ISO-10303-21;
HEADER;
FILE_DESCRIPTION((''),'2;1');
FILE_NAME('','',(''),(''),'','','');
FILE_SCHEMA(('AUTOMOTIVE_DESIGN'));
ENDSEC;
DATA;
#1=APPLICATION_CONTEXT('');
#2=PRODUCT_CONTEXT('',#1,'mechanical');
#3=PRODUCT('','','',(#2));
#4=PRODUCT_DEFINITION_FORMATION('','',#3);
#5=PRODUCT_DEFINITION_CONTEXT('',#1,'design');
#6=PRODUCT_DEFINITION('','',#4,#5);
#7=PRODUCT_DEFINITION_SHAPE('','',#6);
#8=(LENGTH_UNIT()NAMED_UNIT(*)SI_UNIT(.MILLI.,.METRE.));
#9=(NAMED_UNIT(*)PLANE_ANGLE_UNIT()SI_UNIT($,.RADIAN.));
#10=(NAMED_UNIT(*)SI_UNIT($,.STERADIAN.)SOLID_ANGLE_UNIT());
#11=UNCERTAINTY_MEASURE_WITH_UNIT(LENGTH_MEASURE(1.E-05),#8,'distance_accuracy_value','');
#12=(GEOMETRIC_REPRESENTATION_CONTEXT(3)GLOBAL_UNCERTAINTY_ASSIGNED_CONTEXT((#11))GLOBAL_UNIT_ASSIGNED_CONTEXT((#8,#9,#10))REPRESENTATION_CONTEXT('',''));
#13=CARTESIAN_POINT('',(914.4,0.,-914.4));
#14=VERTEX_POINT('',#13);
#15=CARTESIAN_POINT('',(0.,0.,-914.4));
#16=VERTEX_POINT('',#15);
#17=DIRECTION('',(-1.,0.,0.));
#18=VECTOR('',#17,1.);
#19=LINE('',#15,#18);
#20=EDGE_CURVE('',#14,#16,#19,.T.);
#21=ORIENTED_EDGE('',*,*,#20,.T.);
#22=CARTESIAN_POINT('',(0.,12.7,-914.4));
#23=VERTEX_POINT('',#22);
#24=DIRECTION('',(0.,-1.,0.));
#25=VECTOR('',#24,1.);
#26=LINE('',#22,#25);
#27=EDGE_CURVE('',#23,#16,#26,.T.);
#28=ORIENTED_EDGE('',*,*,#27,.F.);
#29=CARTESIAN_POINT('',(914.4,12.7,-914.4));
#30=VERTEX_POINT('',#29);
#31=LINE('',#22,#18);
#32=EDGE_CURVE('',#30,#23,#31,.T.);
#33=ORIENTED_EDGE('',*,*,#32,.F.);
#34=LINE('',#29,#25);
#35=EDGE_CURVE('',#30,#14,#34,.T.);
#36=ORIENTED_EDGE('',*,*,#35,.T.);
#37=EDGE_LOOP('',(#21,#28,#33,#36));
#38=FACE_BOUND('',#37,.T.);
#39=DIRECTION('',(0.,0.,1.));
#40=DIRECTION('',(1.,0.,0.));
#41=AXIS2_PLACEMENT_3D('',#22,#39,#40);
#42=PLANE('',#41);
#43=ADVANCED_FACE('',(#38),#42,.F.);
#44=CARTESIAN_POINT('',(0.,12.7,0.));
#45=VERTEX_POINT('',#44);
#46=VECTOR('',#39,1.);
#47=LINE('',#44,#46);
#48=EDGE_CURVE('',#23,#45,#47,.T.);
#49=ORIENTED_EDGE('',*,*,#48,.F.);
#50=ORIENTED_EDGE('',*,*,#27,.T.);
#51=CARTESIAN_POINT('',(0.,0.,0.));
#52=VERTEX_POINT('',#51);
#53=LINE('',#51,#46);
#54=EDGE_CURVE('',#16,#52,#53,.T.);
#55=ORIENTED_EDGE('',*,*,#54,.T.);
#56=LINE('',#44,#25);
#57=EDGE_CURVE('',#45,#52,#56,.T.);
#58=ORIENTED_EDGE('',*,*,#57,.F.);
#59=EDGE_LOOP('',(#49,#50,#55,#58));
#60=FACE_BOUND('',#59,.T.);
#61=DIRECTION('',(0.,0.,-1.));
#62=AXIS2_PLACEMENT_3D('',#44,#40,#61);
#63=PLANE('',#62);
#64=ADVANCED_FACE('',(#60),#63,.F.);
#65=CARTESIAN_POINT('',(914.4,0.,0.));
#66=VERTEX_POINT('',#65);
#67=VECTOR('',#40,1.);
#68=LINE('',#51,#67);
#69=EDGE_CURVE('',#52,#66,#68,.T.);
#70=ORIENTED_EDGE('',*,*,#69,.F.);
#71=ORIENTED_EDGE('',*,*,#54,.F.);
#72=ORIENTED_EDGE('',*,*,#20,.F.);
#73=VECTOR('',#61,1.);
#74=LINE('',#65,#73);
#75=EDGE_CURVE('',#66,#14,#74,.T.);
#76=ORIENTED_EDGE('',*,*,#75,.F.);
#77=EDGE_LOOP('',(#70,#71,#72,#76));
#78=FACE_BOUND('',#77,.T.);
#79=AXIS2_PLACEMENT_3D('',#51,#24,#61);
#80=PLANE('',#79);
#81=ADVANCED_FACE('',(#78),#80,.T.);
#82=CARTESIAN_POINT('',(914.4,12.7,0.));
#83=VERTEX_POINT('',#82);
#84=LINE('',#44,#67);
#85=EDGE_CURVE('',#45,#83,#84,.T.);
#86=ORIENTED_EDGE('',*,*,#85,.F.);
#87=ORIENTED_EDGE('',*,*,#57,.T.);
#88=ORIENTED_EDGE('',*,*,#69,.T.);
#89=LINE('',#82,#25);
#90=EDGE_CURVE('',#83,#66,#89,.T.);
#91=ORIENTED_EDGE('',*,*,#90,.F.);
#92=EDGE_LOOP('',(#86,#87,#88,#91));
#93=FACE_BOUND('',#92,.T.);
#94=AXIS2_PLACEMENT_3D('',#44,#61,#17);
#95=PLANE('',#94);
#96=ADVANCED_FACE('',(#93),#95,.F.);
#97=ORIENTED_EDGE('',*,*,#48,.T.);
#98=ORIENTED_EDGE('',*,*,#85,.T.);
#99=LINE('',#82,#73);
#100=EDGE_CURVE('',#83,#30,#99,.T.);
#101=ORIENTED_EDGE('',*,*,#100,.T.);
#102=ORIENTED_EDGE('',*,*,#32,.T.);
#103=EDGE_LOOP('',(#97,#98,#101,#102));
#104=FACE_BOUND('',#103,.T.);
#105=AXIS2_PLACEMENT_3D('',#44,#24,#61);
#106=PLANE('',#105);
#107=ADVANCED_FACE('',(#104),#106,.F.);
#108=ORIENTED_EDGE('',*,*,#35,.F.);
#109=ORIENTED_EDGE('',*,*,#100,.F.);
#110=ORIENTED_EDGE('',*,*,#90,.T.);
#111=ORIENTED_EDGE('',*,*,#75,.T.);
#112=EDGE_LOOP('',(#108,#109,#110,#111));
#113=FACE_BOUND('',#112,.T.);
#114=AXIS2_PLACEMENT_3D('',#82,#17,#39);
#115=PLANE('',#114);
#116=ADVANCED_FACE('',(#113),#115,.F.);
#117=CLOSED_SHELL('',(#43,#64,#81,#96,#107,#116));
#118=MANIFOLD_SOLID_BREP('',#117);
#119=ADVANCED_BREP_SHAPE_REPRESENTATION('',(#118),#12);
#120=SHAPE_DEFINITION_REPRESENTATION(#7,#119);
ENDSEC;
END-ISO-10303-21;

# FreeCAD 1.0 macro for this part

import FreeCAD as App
import Part
import Sketcher
from FreeCAD import Vector
Q = App.Units.Quantity


def add_polygon(sketch, points):
    """Adds a closed chain of lines whose ends are joined by coincident constraints."""
    first, n = sketch.GeometryCount, len(points)
    for a, b in zip(points, points[1:] + points[:1]):
        sketch.addGeometry(Part.LineSegment(App.Vector(*a, 0), App.Vector(*b, 0)), False)
    for i in range(n):
        sketch.addConstraint(Sketcher.Constraint("Coincident", first + i, 2, first + (i + 1) % n, 1))

doc = App.newDocument("Part")
body = doc.addObject("PartDesign::Body", "Body")

# Sketch on XZ plane
sketch1 = doc.addObject("Sketcher::SketchObject", "Sketch")
body.addObject(sketch1)
sketch1.AttachmentSupport = (doc.XZ_Plane, [""])
sketch1.MapMode = "FlatFace"
add_polygon(sketch1, [(0, -914.4), (0, 0), (914.4, 0), (914.4, -914.4)])  # lines 0-3
sketch1.addConstraint([
    Sketcher.Constraint("Vertical", 0),
    Sketcher.Constraint("Horizontal", 1),
    Sketcher.Constraint("Vertical", 2),
    Sketcher.Constraint("Horizontal", 3),
    Sketcher.Constraint("Coincident", 0, 2, -1, 1),
    Sketcher.Constraint("Equal", 3, 0),
    Sketcher.Constraint("DistanceX", 1, 1, 1, 2, Q("36 in")),
])
pad1 = doc.addObject("PartDesign::Pad", "Pad")
body.addObject(pad1)
pad1.Profile = sketch1
pad1.Length = Q("0.5 in")
pad1.Reversed = True

doc.recompute()
